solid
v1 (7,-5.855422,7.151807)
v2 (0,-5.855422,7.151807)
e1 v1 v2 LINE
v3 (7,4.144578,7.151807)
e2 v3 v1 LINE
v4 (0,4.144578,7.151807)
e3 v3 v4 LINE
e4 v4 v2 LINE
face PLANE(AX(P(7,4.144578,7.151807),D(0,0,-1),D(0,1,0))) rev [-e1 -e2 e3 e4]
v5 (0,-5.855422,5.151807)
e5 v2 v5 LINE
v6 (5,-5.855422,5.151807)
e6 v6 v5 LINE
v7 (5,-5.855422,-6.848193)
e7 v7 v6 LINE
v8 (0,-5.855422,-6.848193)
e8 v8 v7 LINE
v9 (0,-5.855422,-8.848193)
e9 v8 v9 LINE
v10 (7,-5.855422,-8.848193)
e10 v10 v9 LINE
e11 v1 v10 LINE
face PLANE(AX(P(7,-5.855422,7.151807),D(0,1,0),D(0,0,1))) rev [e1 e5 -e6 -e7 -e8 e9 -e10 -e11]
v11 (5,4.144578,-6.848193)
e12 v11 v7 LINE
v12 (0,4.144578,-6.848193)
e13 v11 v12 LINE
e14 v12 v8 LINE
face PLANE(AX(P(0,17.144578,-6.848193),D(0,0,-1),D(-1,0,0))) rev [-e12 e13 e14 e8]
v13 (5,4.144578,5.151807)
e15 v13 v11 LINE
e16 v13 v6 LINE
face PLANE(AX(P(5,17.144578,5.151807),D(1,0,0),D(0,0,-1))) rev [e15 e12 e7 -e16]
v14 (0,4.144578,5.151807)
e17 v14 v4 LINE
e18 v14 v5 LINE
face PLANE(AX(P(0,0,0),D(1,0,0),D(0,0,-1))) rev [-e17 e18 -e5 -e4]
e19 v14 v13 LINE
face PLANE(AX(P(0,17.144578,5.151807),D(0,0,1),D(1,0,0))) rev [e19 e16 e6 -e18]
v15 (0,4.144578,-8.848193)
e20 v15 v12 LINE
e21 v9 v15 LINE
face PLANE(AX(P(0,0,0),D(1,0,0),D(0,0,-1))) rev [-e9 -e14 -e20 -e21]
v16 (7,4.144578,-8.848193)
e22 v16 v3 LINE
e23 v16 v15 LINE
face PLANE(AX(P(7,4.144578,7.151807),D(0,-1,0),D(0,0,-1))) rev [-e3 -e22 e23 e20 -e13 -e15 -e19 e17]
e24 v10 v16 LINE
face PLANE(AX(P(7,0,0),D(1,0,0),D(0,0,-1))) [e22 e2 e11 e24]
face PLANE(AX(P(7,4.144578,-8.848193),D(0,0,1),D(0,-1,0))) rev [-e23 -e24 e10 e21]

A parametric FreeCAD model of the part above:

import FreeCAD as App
import Part
import Sketcher

V = App.Vector
Q = App.Units.Quantity


def add_polygon(sketch, points):
    """Adds a closed chain of lines whose ends are joined by coincident constraints."""
    first, n = sketch.GeometryCount, len(points)
    for a, b in zip(points, points[1:] + points[:1]):
        sketch.addGeometry(Part.LineSegment(App.Vector(*a, 0), App.Vector(*b, 0)), False)
    for i in range(n):
        sketch.addConstraint(Sketcher.Constraint("Coincident", first + i, 2, first + (i + 1) % n, 1))

doc = App.newDocument("Part")
body = doc.addObject("PartDesign::Body", "Body")

# Sketch on YZ plane
sketch1 = body.newObject("Sketcher::SketchObject", "Sketch")
sketch1.AttachmentSupport = (doc.getObject("YZ_Plane"), [""])
sketch1.MapMode = "FlatFace"
add_polygon(sketch1, [(4, 7), (-6, 7), (-6, -9), (4, -9)])  # lines 0-3
sketch1.addConstraint(Sketcher.Constraint("Horizontal", 0))
sketch1.addConstraint(Sketcher.Constraint("Vertical", 1))
sketch1.addConstraint(Sketcher.Constraint("Horizontal", 2))
sketch1.addConstraint(Sketcher.Constraint("Vertical", 3))
sketch1.addConstraint(Sketcher.Constraint("DistanceX", 0, 2, 0, 1, Q("10 mm")))
sketch1.addConstraint(Sketcher.Constraint("DistanceY", 1, 2, 1, 1, Q("16 mm")))
sketch1.addConstraint(Sketcher.Constraint("DistanceX", 0, 2, -1, 1, Q("5.855422 mm")))
sketch1.addConstraint(Sketcher.Constraint("DistanceY", -1, 1, 0, 2, Q("7.151807 mm")))
pad1 = body.newObject("PartDesign::Pad", "Pad")
pad1.Profile = sketch1
pad1.Length = 7

# Sketch on XZ plane
sketch2 = body.newObject("Sketcher::SketchObject", "Sketch001")
sketch2.AttachmentSupport = (doc.getObject("XZ_Plane"), [""])
sketch2.MapMode = "FlatFace"
sketch2.AttachmentOffset = App.Placement(V(0, 0, 5.855422), App.Rotation())
add_polygon(sketch2, [(5, -7), (5, 5), (0, 5), (0, -7)])  # lines 0-3
sketch2.addConstraint(Sketcher.Constraint("Vertical", 0))
sketch2.addConstraint(Sketcher.Constraint("Horizontal", 1))
sketch2.addConstraint(Sketcher.Constraint("Vertical", 2))
sketch2.addConstraint(Sketcher.Constraint("Horizontal", 3))
sketch2.addConstraint(Sketcher.Constraint("PointOnObject", 1, 2, -2))
sketch2.addConstraint(Sketcher.Constraint("DistanceX", 1, 2, 1, 1, Q("5 mm")))
sketch2.addConstraint(Sketcher.Constraint("DistanceY", 0, 1, 0, 2, Q("12 mm")))
sketch2.addConstraint(Sketcher.Constraint("DistanceY", -1, 1, 0, 2, Q("5.151807 mm")))
pocket1 = body.newObject("PartDesign::Pocket", "Pocket")
pocket1.Profile = sketch2
pocket1.Length = 10

doc.recompute()
